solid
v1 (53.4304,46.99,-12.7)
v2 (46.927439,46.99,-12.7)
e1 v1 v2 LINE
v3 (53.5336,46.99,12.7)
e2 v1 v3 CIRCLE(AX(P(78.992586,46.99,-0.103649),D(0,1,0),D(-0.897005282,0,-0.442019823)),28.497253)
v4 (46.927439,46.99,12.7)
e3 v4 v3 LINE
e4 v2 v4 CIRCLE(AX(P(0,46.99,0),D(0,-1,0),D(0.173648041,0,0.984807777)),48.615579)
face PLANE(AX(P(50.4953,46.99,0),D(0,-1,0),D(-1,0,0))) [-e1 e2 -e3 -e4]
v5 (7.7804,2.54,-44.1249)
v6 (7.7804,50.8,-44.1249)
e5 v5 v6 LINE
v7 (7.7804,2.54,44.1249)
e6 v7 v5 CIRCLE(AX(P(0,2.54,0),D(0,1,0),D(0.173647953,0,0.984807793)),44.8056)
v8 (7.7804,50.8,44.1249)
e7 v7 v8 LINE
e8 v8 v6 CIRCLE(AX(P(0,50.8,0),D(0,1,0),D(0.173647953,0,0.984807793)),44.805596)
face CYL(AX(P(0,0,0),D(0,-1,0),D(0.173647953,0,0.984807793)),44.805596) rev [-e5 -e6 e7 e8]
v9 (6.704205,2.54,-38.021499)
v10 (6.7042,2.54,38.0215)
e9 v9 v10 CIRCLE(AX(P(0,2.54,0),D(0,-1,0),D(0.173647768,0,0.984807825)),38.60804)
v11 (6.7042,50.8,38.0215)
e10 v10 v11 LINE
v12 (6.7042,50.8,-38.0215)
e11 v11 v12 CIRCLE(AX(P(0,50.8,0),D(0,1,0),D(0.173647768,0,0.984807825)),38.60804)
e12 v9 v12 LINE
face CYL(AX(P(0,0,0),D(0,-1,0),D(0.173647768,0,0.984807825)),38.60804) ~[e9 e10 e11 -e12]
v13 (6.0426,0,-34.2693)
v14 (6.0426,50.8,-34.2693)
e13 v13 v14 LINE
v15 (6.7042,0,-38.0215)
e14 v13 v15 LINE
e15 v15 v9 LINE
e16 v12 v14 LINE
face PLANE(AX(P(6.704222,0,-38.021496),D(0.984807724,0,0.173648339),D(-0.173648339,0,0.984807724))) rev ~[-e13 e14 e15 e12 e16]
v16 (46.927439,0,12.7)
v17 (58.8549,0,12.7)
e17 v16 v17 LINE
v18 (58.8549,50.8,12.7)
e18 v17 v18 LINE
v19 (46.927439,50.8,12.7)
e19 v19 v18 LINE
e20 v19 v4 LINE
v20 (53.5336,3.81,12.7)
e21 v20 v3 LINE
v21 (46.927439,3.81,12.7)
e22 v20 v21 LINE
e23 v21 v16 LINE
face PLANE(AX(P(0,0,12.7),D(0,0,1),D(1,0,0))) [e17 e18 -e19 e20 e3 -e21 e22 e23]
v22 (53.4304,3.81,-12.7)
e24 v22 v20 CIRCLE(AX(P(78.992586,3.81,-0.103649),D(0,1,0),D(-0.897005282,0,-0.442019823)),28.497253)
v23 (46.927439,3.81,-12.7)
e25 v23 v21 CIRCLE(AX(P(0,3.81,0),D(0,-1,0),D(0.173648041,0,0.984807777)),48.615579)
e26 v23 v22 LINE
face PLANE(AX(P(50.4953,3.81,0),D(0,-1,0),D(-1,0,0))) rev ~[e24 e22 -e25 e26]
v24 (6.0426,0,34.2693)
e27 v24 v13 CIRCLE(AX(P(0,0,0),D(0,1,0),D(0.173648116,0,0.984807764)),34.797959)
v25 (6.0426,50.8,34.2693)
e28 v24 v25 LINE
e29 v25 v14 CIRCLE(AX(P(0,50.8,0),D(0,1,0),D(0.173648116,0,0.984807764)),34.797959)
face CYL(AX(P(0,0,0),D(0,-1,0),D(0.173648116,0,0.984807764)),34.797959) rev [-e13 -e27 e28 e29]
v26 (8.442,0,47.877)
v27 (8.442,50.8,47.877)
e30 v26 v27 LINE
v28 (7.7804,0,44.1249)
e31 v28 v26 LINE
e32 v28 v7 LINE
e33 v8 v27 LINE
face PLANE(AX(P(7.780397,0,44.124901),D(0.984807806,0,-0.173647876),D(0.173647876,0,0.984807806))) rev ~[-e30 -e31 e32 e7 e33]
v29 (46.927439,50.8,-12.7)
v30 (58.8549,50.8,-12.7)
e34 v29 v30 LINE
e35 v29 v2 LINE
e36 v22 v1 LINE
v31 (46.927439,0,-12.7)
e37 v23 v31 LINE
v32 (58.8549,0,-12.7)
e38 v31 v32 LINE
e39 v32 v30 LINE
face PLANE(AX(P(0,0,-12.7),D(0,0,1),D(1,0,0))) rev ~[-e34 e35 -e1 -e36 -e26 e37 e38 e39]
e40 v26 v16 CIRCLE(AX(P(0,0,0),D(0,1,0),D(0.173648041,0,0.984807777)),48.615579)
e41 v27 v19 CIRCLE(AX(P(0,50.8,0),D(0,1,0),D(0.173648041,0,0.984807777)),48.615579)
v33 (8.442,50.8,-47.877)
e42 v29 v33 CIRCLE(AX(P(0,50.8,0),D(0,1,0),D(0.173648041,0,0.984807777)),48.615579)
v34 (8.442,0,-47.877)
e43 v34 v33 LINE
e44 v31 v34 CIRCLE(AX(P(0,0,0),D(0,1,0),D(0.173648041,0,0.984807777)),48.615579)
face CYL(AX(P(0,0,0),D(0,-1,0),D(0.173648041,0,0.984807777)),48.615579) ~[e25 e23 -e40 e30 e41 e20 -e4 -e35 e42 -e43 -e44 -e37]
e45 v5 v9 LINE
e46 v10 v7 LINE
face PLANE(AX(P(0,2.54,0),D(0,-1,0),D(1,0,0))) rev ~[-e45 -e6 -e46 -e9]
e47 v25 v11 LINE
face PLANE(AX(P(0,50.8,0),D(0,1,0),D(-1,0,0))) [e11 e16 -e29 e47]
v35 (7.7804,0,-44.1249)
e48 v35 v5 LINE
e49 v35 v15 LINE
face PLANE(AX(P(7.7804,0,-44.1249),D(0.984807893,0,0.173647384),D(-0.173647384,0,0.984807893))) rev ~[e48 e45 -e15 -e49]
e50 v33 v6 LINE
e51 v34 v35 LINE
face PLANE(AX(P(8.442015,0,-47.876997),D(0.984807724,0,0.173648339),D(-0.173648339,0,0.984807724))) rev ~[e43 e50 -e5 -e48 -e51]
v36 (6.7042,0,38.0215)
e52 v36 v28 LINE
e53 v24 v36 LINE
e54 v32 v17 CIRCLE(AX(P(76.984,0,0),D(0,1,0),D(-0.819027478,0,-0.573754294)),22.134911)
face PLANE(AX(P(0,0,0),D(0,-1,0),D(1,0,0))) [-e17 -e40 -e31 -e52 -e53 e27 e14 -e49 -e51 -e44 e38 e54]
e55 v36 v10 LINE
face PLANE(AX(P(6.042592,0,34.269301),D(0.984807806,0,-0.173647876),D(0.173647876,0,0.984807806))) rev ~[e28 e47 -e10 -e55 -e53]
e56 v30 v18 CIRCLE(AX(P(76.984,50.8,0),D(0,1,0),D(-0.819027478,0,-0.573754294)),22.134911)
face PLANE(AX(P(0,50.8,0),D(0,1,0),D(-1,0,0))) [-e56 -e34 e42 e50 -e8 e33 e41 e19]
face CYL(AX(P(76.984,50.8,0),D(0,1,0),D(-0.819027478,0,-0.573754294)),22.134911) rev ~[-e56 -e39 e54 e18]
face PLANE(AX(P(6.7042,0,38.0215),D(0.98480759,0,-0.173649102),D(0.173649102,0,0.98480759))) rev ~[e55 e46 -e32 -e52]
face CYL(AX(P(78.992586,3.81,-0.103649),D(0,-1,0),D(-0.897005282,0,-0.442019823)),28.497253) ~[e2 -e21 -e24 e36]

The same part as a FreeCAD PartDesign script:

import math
import FreeCAD as App
import Part
import Sketcher

V = App.Vector
Q = App.Units.Quantity


def add_polygon(sketch, points):
    """Adds a closed chain of lines whose ends are joined by coincident constraints."""
    first, n = sketch.GeometryCount, len(points)
    for a, b in zip(points, points[1:] + points[:1]):
        sketch.addGeometry(Part.LineSegment(App.Vector(*a, 0), App.Vector(*b, 0)), False)
    for i in range(n):
        sketch.addConstraint(Sketcher.Constraint("Coincident", first + i, 2, first + (i + 1) % n, 1))

doc = App.newDocument("Part")
params = doc.addObject("Spreadsheet::Sheet", "Params")
for row, (alias, value) in enumerate([
    ("sketch1_radius", "1.52 in"),
    ("sketch1_radius2", "1.37 in"),
    ("sketch1_radius3", "1.914 in"),
    ("pad1_length", "2 in"),
    ("sketch2_height", "2 in"),
    ("sketch2_height2", "1.7 in"),
    ("pad2_length", "1 in"),
    ("sketch3_radius", "1.52 in"),
    ("sketch3_radius2", "1.764 in"),
    ("pad3_length", "0.1 in"),
    ("pocket1_length", "1.7 in"),
    ("sketch5_height", "1 in"),
    ("pocket2_length", "2 in"),
], start=1):
    params.set(f"A{row}", alias)
    params.set(f"B{row}", "=" + value)
    params.setAlias(f"B{row}", alias)

body = doc.addObject("PartDesign::Body", "Body")
body.AllowCompound = True

sketch1 = doc.addObject("Sketcher::SketchObject", "Sketch")
body.addObject(sketch1)
sketch1.AttachmentSupport = (doc.XZ_Plane, [""])
sketch1.MapMode = "FlatFace"
sketch1.addGeometry(Part.LineSegment(V(7.8, 44.1, 0), V(8.4, 47.9, 0)), False)
sketch1.addGeometry(Part.ArcOfCircle(Part.Circle(V(0, 0, 0), V(0, 0, 1), 48.6), math.radians(-80), math.radians(80)), False)
sketch1.addGeometry(Part.LineSegment(V(8.4, -47.9, 0), V(7.8, -44.1, 0)), False)
sketch1.addGeometry(Part.ArcOfCircle(Part.Circle(V(0, 0, 0), V(0, 0, 1), 44.8), math.radians(-80), math.radians(80)), False)
sketch1.addGeometry(Part.LineSegment(V(6, 34.3, 0), V(6.7, 38, 0)), False)
sketch1.addGeometry(Part.ArcOfCircle(Part.Circle(V(0, 0, 0), V(0, 0, 1), 38.6), math.radians(-80), math.radians(80)), False)
sketch1.addGeometry(Part.LineSegment(V(6.7, -38, 0), V(6, -34.3, 0)), False)
sketch1.addGeometry(Part.ArcOfCircle(Part.Circle(V(0, 0, 0), V(0, 0, 1), 34.8), math.radians(-80), math.radians(80)), False)
sketch1.addConstraint(Sketcher.Constraint("Coincident", 0, 2, 1, 2))
sketch1.addConstraint(Sketcher.Constraint("Coincident", 1, 1, 2, 1))
sketch1.addConstraint(Sketcher.Constraint("Coincident", 2, 2, 3, 1))
sketch1.addConstraint(Sketcher.Constraint("Coincident", 3, 2, 0, 1))
sketch1.addConstraint(Sketcher.Constraint("Coincident", 4, 2, 5, 2))
sketch1.addConstraint(Sketcher.Constraint("Coincident", 5, 1, 6, 1))
sketch1.addConstraint(Sketcher.Constraint("Coincident", 6, 2, 7, 1))
sketch1.addConstraint(Sketcher.Constraint("Coincident", 7, 2, 4, 1))
sketch1.addConstraint(Sketcher.Constraint("Coincident", 1, 3, -1, 1))
sketch1.addConstraint(Sketcher.Constraint("Coincident", 3, 3, -1, 1))
sketch1.addConstraint(Sketcher.Constraint("Coincident", 5, 3, -1, 1))
sketch1.addConstraint(Sketcher.Constraint("Coincident", 7, 3, -1, 1))
sketch1.addConstraint(Sketcher.Constraint("Parallel", 0, 4))
sketch1.addConstraint(Sketcher.Constraint("Parallel", 2, 6))
sketch1.addConstraint(Sketcher.Constraint("Vertical", 0, 2, 1, 1))
sketch1.addConstraint(Sketcher.Constraint("Vertical", 2, 2, 3, 2))
sketch1.addConstraint(Sketcher.Constraint("Vertical", 4, 2, 5, 1))
sketch1.addConstraint(Sketcher.Constraint("Equal", 2, 4))
sketch1.addConstraint(Sketcher.Constraint("Radius", 5, Q("1.52 in")))
sketch1.addConstraint(Sketcher.Constraint("Radius", 7, Q("1.37 in")))
sketch1.addConstraint(Sketcher.Constraint("Angle", 2, Q("100 deg")))
sketch1.addConstraint(Sketcher.Constraint("Radius", 1, Q("1.914 in")))
sketch1.addConstraint(Sketcher.Constraint("DistanceY", 4, 2, 0, 2, Q("0.388 in")))
sketch1.addConstraint(Sketcher.Constraint("DistanceY", 2, 2, -1, 1, Q("1.7372 in")))
sketch1.setExpression("Constraints[18]", "Params.sketch1_radius")
sketch1.setExpression("Constraints[19]", "Params.sketch1_radius2")
sketch1.setExpression("Constraints[21]", "Params.sketch1_radius3")
pad1 = doc.addObject("PartDesign::Pad", "Pad")
body.addObject(pad1)
pad1.Profile = sketch1
pad1.setExpression("Length", "Params.pad1_length")
pad1.Reversed = True

sketch2 = doc.addObject("Sketcher::SketchObject", "Sketch001")
body.addObject(sketch2)
sketch2.AttachmentSupport = (doc.XY_Plane, [""])
sketch2.MapMode = "FlatFace"
add_polygon(sketch2, [(46, 3.8), (46, 0), (58.9, 0), (58.9, 50.8), (46, 50.8), (46, 47), (50.5, 47), (50.5, 3.8)])
sketch2.addConstraint(Sketcher.Constraint("Vertical", 0))
sketch2.addConstraint(Sketcher.Constraint("Horizontal", 1))
sketch2.addConstraint(Sketcher.Constraint("Vertical", 2))
sketch2.addConstraint(Sketcher.Constraint("Horizontal", 3))
sketch2.addConstraint(Sketcher.Constraint("Vertical", 4))
sketch2.addConstraint(Sketcher.Constraint("Horizontal", 5))
sketch2.addConstraint(Sketcher.Constraint("Vertical", 6))
sketch2.addConstraint(Sketcher.Constraint("Horizontal", 7))
sketch2.addConstraint(Sketcher.Constraint("PointOnObject", 0, 2, -1))
sketch2.addConstraint(Sketcher.Constraint("Vertical", 0, 2, 3, 2))
sketch2.addConstraint(Sketcher.Constraint("Equal", 0, 4))
sketch2.addConstraint(Sketcher.Constraint("DistanceY", 2, 1, 2, 2, Q("2 in")))
sketch2.addConstraint(Sketcher.Constraint("DistanceY", 6, 2, 6, 1, Q("1.7 in")))
sketch2.addConstraint(Sketcher.Constraint("DistanceX", -1, 1, 5, 2, Q("1.988 in")))
sketch2.addConstraint(Sketcher.Constraint("DistanceX", 1, 1, 1, 2, 12.88))
sketch2.addConstraint(Sketcher.Constraint("DistanceX", 5, 1, 5, 2, 4.5203))
sketch2.setExpression("Constraints[19]", "Params.sketch2_height")
sketch2.setExpression("Constraints[20]", "Params.sketch2_height2")
pad2 = doc.addObject("PartDesign::Pad", "Pad001")
body.addObject(pad2)
pad2.Profile = sketch2
pad2.setExpression("Length", "Params.pad2_length")
pad2.Midplane = True

sketch3 = doc.addObject("Sketcher::SketchObject", "Sketch002")
body.addObject(sketch3)
sketch3.AttachmentSupport = (doc.XZ_Plane, [""])
sketch3.MapMode = "FlatFace"
sketch3.addGeometry(Part.ArcOfCircle(Part.Circle(V(0, 0, 0), V(0, 0, 1), 45), math.radians(-80), math.radians(80)), False)
sketch3.addGeometry(Part.LineSegment(V(8, 44, 0), V(7, 38, 0)), False)
sketch3.addGeometry(Part.ArcOfCircle(Part.Circle(V(0, 0, 0), V(0, 0, 1), 39), math.radians(-80), math.radians(80)), False)
sketch3.addGeometry(Part.LineSegment(V(7, -38, 0), V(8, -44, 0)), False)
sketch3.addConstraint(Sketcher.Constraint("Coincident", 0, 2, 1, 1))
sketch3.addConstraint(Sketcher.Constraint("Coincident", 1, 2, 2, 2))
sketch3.addConstraint(Sketcher.Constraint("Coincident", 2, 1, 3, 1))
sketch3.addConstraint(Sketcher.Constraint("Coincident", 3, 2, 0, 1))
sketch3.addConstraint(Sketcher.Constraint("Coincident", 0, 3, -1, 1))
sketch3.addConstraint(Sketcher.Constraint("Coincident", 2, 3, -1, 1))
sketch3.addConstraint(Sketcher.Constraint("Vertical", 1, 2, 2, 1))
sketch3.addConstraint(Sketcher.Constraint("Vertical", 0, 2, 3, 2))
sketch3.addConstraint(Sketcher.Constraint("Radius", 2, Q("1.52 in")))
sketch3.addConstraint(Sketcher.Constraint("Angle", 1, Q("-100 deg")))
sketch3.addConstraint(Sketcher.Constraint("Radius", 0, Q("1.764 in")))
sketch3.addConstraint(Sketcher.Constraint("DistanceY", -1, 1, 0, 2, Q("1.7372 in")))
sketch3.setExpression("Constraints[8]", "Params.sketch3_radius")
sketch3.setExpression("Constraints[10]", "Params.sketch3_radius2")
pad3 = doc.addObject("PartDesign::Pad", "Pad002")
body.addObject(pad3)
pad3.Profile = sketch3
pad3.setExpression("Length", "Params.pad3_length")
pad3.Reversed = True

sketch4 = doc.addObject("Sketcher::SketchObject", "Sketch003")
body.addObject(sketch4)
sketch4.AttachmentSupport = (doc.XZ_Plane, [""])
sketch4.MapMode = "FlatFace"
sketch4.AttachmentOffset = App.Placement(V(0, 0, -0.15 * 25.4), App.Rotation())
sketch4.addGeometry(Part.ArcOfCircle(Part.Circle(V(79, -0.1, 0), V(0, 0, 1), 28.5), math.radians(153), math.radians(206)), False)
sketch4.addGeometry(Part.LineSegment(V(53.4, -12.7, 0), V(48.7, -12.7, 0)), False)
sketch4.addGeometry(Part.LineSegment(V(48.7, -12.7, 0), V(49.3, 12.7, 0)), False)
sketch4.addGeometry(Part.LineSegment(V(49.3, 12.7, 0), V(53.5, 12.7, 0)), False)
sketch4.addConstraint(Sketcher.Constraint("Coincident", 0, 2, 1, 1))
sketch4.addConstraint(Sketcher.Constraint("Coincident", 1, 2, 2, 1))
sketch4.addConstraint(Sketcher.Constraint("Coincident", 2, 2, 3, 1))
sketch4.addConstraint(Sketcher.Constraint("Coincident", 3, 2, 0, 1))
sketch4.addConstraint(Sketcher.Constraint("Horizontal", 1))
sketch4.addConstraint(Sketcher.Constraint("Horizontal", 3))
sketch4.addConstraint(Sketcher.Constraint("DistanceY", 1, 2, 2, 2, Q("1 in")))
sketch4.addConstraint(Sketcher.Constraint("DistanceY", 0, 2, -1, 1, Q("0.5 in")))
sketch4.addConstraint(Sketcher.Constraint("Angle", 2, Q("88.6809 deg")))
sketch4.addConstraint(Sketcher.Constraint("Radius", 0, 28.4975))
sketch4.addConstraint(Sketcher.Constraint("DistanceX", 1, 2, 1, 1, 4.719))
sketch4.addConstraint(Sketcher.Constraint("DistanceX", 3, 1, 3, 2, 4.2373))
sketch4.addConstraint(Sketcher.Constraint("DistanceX", -1, 1, 2, 2, Q("1.9408 in")))
pocket1 = doc.addObject("PartDesign::Pocket", "Pocket")
body.addObject(pocket1)
pocket1.Profile = sketch4
pocket1.setExpression("Length", "Params.pocket1_length")

sketch5 = doc.addObject("Sketcher::SketchObject", "Sketch004")
body.addObject(sketch5)
sketch5.AttachmentSupport = (doc.XZ_Plane, [""])
sketch5.MapMode = "FlatFace"
sketch5.AttachmentOffset = App.Placement(V(0, 0, -2 * 25.4), App.Rotation())
sketch5.addGeometry(Part.ArcOfCircle(Part.Circle(V(77, 0, 0), V(0, 0, 1), 22), math.radians(145), math.radians(215)), False)
sketch5.addGeometry(Part.LineSegment(V(59, 13, 0), V(59, -13, 0)), False)
sketch5.addConstraint(Sketcher.Constraint("Coincident", 0, 1, 1, 1))
sketch5.addConstraint(Sketcher.Constraint("Coincident", 1, 2, 0, 2))
sketch5.addConstraint(Sketcher.Constraint("Vertical", 1))
sketch5.addConstraint(Sketcher.Constraint("PointOnObject", 0, 3, -1))
sketch5.addConstraint(Sketcher.Constraint("DistanceY", 1, 2, 1, 1, Q("1 in")))
sketch5.addConstraint(Sketcher.Constraint("Radius", 0, 22.135))
sketch5.addConstraint(Sketcher.Constraint("DistanceX", -1, 1, 0, 3, 76.984))
sketch5.setExpression("Constraints[4]", "Params.sketch5_height")
pocket2 = doc.addObject("PartDesign::Pocket", "Pocket001")
body.addObject(pocket2)
pocket2.Profile = sketch5
pocket2.setExpression("Length", "Params.pocket2_length")
pocket2.Reversed = True

doc.recompute()
